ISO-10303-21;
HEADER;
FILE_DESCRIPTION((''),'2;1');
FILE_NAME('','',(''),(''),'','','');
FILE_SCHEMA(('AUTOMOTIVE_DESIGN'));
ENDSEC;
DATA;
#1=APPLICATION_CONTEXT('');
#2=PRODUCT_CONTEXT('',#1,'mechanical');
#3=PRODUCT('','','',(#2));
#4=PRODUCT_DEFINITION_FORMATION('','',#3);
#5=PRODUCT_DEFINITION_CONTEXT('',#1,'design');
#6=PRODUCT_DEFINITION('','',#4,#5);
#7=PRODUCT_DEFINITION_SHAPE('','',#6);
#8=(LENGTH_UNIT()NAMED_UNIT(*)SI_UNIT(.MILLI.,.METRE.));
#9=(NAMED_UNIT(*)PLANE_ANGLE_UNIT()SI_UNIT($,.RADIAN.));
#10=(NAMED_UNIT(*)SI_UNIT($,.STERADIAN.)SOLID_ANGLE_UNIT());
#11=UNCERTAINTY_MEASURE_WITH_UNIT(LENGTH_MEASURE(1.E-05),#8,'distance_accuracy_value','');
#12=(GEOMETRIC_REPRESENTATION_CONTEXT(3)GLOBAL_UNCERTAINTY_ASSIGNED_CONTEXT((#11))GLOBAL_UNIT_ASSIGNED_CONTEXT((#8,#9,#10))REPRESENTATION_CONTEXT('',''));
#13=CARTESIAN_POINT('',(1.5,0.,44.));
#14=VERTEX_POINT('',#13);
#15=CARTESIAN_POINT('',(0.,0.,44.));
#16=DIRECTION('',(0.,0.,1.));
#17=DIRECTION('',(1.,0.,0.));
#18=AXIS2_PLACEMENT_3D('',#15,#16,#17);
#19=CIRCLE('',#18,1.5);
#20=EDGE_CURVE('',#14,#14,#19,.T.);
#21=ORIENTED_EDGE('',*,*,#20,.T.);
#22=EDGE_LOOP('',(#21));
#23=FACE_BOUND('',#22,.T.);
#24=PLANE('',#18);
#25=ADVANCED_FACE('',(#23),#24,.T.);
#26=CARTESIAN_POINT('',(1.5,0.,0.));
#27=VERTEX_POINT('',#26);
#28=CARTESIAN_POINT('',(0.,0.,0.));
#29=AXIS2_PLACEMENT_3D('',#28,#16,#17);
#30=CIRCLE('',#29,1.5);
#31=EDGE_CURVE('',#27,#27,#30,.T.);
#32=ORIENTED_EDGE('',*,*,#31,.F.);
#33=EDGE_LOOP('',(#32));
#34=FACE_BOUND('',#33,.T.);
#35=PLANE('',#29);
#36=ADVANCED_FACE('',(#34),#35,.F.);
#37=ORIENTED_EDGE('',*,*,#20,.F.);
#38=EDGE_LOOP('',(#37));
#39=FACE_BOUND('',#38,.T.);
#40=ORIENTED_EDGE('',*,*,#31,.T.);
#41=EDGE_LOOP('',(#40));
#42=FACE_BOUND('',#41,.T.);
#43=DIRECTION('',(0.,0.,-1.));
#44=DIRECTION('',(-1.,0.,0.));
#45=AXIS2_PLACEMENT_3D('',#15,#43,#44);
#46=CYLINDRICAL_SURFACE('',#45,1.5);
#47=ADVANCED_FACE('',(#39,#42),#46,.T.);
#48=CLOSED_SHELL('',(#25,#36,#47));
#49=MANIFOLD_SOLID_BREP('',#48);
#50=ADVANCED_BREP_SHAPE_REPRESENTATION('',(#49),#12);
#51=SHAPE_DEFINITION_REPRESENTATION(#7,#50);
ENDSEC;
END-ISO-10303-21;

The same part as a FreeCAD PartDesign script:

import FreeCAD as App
import Part
import Sketcher
from FreeCAD import Vector
Q = App.Units.Quantity

doc = App.newDocument("Part")
body = doc.addObject("PartDesign::Body", "Body")

sketch1 = doc.addObject("Sketcher::SketchObject", "Sketch")
body.addObject(sketch1)
sketch1.AttachmentSupport = (doc.XY_Plane, [""])
sketch1.MapMode = "FlatFace"
sketch1.addGeometry(Part.Circle(Vector(0, 0, 0), Vector(0, 0, 1), 1.5), False)
sketch1.addConstraint([
    Sketcher.Constraint("Coincident", 0, 3, -1, 1),
    Sketcher.Constraint("Diameter", 0, Q("3 mm")),
])
pad1 = doc.addObject("PartDesign::Pad", "Pad")
body.addObject(pad1)
pad1.Profile = sketch1
pad1.Length = 44

doc.recompute()
